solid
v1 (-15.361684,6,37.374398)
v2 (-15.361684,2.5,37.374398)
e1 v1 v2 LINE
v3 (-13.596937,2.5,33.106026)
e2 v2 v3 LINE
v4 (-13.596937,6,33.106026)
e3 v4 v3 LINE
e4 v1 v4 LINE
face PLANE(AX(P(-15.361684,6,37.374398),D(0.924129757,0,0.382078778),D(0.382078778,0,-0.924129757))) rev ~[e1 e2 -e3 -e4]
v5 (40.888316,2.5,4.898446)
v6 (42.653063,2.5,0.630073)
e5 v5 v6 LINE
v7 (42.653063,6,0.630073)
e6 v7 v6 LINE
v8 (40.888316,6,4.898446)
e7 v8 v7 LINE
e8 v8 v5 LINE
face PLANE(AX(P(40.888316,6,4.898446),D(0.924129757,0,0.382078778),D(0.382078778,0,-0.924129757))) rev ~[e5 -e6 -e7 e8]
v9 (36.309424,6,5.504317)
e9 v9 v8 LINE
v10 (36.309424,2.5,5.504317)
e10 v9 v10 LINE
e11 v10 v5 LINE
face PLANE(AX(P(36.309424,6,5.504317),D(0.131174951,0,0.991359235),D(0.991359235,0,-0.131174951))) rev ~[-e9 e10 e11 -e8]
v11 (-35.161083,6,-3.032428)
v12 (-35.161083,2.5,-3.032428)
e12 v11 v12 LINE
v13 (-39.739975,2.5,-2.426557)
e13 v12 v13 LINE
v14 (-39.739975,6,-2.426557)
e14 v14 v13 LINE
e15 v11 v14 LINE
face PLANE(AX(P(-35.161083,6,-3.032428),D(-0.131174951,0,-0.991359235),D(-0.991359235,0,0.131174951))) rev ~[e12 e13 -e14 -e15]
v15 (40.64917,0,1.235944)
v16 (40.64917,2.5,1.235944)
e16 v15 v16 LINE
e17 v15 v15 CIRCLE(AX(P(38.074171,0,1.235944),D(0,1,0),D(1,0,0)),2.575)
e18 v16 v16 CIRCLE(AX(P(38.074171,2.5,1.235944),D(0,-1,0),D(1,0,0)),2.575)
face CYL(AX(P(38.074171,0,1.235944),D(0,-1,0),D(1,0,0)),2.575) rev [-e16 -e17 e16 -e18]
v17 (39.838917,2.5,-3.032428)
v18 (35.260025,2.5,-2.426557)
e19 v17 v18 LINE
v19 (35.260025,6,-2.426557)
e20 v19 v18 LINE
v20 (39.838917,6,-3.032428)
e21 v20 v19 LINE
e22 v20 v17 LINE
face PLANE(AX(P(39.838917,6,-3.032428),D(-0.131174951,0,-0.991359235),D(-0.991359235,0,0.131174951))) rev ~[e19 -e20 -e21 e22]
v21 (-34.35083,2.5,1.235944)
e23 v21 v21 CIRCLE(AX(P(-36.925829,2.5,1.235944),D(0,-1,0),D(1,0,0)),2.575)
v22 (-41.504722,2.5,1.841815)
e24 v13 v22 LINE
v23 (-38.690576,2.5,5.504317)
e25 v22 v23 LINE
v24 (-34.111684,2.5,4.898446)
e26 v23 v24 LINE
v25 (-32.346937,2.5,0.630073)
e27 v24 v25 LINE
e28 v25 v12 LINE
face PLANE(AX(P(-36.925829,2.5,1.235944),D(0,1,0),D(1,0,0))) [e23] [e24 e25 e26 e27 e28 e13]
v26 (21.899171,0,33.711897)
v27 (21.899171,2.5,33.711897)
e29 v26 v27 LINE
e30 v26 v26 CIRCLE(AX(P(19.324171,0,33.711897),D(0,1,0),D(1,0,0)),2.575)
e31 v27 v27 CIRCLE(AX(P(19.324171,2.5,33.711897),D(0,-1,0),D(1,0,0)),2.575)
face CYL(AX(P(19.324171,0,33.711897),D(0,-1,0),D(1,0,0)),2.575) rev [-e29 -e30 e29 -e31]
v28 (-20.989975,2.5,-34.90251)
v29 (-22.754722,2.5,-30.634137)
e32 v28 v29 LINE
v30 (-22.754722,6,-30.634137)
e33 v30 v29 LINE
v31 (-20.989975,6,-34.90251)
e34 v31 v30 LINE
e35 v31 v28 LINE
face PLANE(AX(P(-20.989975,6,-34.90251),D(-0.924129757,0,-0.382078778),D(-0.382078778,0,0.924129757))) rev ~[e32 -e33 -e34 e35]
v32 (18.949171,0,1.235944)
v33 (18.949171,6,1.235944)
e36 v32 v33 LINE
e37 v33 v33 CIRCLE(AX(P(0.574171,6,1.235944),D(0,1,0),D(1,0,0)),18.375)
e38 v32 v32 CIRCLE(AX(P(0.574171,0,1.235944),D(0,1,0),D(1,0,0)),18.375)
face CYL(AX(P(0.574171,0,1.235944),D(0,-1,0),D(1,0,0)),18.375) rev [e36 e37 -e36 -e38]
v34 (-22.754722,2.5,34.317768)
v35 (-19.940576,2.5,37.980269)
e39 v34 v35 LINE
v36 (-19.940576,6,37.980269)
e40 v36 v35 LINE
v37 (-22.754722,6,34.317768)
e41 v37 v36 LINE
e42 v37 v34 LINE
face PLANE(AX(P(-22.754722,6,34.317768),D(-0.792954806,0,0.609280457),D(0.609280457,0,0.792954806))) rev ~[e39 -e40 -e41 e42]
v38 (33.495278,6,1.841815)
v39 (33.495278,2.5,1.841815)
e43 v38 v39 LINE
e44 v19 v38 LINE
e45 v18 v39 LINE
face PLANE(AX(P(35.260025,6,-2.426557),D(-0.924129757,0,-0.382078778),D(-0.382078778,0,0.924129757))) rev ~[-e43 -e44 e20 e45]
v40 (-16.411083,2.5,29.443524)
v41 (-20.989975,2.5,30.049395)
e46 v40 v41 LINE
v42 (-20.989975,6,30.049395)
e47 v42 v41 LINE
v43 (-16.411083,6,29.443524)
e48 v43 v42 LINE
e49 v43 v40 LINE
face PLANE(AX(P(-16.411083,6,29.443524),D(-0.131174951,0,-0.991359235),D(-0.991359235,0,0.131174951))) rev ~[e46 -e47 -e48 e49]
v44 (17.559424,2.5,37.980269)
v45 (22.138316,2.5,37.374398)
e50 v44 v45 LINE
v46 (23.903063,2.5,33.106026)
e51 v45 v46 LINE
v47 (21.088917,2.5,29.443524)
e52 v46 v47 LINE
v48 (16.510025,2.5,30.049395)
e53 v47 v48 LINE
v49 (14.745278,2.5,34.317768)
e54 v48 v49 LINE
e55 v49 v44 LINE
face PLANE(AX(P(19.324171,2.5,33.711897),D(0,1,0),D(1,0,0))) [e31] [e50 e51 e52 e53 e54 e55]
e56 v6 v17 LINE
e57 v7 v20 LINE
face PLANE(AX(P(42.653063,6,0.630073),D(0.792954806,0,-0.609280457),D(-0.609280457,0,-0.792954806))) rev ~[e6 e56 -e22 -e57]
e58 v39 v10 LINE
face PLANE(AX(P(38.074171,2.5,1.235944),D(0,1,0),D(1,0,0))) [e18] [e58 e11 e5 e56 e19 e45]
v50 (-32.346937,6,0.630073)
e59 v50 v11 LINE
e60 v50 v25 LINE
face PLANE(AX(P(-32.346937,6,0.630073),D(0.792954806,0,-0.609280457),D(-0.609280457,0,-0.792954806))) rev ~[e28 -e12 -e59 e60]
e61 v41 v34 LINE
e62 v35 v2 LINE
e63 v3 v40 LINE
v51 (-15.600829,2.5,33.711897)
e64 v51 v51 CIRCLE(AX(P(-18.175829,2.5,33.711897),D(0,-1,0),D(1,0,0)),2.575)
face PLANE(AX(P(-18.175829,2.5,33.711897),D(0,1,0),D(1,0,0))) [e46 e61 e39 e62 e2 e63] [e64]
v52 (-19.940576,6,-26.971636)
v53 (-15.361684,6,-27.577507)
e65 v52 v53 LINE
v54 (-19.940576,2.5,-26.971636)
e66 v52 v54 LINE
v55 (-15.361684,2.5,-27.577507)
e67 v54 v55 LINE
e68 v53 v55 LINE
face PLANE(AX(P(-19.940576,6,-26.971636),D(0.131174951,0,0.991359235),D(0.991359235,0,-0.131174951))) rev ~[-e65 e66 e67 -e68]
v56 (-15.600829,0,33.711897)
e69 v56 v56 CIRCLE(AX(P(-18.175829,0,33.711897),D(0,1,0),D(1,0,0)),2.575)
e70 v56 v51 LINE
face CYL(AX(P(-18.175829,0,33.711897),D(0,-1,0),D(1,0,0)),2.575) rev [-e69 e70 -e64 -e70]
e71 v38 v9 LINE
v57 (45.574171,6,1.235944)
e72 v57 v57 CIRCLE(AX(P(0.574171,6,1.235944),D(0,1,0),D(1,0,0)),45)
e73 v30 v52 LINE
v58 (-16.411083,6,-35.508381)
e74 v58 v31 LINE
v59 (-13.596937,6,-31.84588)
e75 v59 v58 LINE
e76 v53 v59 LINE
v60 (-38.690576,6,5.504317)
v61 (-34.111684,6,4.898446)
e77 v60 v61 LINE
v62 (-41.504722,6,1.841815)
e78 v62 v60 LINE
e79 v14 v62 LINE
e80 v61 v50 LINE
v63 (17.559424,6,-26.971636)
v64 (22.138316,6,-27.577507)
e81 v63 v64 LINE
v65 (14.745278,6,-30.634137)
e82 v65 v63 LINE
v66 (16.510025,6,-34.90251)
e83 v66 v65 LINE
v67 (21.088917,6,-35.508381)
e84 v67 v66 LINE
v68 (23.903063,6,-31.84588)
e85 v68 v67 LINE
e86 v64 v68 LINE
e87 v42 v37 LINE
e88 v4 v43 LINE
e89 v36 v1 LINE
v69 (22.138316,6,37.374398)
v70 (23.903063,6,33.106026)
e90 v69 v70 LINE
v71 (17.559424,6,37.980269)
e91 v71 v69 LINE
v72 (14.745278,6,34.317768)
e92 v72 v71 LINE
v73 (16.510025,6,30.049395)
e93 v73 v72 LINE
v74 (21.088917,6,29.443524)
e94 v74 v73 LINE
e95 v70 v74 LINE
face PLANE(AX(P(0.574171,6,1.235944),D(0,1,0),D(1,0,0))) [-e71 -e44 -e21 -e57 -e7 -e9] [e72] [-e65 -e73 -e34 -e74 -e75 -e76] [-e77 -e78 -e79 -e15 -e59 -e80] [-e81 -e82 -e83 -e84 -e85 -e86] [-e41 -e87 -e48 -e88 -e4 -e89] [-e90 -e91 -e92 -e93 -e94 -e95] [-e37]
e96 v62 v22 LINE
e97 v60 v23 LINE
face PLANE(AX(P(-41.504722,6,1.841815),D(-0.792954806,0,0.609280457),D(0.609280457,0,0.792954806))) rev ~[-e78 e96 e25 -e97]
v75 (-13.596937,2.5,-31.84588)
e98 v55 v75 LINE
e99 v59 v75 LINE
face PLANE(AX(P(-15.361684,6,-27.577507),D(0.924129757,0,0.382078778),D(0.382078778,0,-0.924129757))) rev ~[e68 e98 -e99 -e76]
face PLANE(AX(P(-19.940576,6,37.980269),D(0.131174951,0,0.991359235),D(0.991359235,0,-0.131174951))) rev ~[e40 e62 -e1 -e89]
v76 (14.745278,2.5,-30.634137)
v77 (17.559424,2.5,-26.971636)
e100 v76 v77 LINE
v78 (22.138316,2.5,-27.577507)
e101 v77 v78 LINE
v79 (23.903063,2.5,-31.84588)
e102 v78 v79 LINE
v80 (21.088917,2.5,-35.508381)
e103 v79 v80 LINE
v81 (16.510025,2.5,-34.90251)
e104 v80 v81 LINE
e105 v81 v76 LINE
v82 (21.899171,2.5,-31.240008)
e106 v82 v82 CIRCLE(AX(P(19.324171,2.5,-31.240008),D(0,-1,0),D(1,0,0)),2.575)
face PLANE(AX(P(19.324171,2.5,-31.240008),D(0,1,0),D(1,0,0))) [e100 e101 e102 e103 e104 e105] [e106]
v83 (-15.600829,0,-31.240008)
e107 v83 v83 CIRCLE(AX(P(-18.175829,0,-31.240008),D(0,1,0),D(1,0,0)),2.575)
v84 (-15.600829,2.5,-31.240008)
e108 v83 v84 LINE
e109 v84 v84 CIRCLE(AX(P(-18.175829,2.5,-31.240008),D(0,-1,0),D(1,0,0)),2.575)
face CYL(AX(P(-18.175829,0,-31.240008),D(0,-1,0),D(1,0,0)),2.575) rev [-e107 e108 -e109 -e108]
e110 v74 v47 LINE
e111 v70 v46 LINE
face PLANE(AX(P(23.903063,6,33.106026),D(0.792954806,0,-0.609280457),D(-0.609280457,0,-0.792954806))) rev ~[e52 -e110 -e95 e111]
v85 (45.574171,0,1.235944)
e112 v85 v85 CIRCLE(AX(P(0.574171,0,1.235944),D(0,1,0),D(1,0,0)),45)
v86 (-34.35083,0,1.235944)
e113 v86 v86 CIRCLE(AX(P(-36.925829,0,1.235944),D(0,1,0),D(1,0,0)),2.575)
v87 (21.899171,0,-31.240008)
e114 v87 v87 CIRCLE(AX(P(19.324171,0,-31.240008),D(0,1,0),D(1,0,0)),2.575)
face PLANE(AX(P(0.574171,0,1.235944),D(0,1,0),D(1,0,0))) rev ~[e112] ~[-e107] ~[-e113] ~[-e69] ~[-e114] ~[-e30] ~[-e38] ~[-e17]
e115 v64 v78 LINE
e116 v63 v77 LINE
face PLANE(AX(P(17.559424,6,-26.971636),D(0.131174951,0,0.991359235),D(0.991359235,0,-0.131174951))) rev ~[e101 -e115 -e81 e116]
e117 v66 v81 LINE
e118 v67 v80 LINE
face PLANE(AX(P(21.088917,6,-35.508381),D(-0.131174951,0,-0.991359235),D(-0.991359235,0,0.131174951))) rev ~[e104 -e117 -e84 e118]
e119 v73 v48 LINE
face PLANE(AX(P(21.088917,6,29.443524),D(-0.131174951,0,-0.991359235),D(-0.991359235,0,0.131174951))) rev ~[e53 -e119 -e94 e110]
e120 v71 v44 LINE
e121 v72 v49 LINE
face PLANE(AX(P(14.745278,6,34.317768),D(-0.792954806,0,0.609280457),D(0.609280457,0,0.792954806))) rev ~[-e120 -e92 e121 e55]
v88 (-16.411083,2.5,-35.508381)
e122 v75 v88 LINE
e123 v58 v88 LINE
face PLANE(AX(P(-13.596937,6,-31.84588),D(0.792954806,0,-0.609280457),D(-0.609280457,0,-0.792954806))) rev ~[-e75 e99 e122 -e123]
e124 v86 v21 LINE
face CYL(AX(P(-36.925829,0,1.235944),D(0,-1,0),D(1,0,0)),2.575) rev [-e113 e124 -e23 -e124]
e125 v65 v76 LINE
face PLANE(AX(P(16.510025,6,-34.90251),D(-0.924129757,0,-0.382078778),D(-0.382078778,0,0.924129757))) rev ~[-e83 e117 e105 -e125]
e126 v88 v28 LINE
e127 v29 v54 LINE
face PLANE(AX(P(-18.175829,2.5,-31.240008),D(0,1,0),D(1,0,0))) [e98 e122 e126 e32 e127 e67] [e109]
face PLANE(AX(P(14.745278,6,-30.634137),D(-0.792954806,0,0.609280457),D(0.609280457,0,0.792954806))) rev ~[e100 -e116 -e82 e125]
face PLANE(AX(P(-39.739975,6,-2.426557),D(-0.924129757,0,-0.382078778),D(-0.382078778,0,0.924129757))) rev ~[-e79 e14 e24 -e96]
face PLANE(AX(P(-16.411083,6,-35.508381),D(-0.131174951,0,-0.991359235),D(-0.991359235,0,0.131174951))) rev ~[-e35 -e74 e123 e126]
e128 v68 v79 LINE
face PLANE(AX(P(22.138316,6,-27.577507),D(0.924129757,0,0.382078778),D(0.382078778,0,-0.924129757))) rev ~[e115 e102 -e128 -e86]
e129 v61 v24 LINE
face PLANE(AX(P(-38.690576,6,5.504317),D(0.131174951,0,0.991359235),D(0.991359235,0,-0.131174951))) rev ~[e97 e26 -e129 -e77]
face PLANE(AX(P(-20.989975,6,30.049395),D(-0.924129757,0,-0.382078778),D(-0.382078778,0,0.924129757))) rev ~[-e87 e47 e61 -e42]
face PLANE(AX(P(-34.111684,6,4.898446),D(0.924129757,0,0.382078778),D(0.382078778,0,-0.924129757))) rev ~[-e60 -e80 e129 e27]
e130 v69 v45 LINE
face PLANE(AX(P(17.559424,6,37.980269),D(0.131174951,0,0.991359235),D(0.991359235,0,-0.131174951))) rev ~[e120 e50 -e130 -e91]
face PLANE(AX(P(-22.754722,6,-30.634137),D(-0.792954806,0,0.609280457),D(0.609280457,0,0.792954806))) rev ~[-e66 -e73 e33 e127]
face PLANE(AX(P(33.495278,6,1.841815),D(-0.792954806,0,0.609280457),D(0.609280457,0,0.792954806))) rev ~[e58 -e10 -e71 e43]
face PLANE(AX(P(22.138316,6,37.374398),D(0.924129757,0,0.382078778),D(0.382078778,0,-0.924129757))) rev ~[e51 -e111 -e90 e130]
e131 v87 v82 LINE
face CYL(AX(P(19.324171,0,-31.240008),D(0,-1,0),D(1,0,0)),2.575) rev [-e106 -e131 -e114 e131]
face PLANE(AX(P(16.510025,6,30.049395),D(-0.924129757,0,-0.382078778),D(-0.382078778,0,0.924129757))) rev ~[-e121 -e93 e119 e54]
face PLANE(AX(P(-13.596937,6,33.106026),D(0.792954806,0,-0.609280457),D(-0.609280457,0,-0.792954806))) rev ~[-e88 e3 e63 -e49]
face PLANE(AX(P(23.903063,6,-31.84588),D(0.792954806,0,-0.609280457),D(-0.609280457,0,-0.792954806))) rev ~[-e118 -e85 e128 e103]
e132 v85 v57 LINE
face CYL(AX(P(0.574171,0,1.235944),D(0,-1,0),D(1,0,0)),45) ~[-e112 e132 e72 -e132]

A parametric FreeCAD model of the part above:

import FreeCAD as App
import Part
import Sketcher
from FreeCAD import Vector
Q = App.Units.Quantity

doc = App.newDocument("Part")
body = doc.addObject("PartDesign::Body", "Body")

sketch1 = body.newObject("Sketcher::SketchObject", "Sketch")
sketch1.AttachmentSupport = (doc.getObject("XZ_Plane"), [""])
sketch1.MapMode = "FlatFace"
sketch1.addGeometry([
    Part.Circle(Vector(0.574171, 1.235944, 0), Vector(0, 0, 1), 45),
    Part.Circle(Vector(0.574171, 1.235944, 0), Vector(0, 0, 1), 18.375),
], False)
sketch1.addConstraint([
    Sketcher.Constraint("Coincident", 1, 3, 0, 3),
    Sketcher.Constraint("Diameter", 0, Q("90 mm")),
    Sketcher.Constraint("Diameter", 1, Q("36.75 mm")),
    Sketcher.Constraint("DistanceX", -1, 1, 0, 3, Q("0.574171 mm")),
    Sketcher.Constraint("DistanceY", -1, 1, 0, 3, Q("1.235944 mm")),
])
pad1 = body.newObject("PartDesign::Pad", "Pad")
pad1.Profile = sketch1
pad1.Length = 6
pad1.Reversed = True

sketch2 = body.newObject("Sketcher::SketchObject", "Sketch001")
sketch2.AttachmentSupport = (doc.getObject("XZ_Plane"), [""])
sketch2.MapMode = "FlatFace"
sketch2.addGeometry([
    Part.Circle(Vector(-18.175829, -31.240008, 0), Vector(0, 0, 1), 2.575),
    Part.Circle(Vector(19.324171, -31.240008, 0), Vector(0, 0, 1), 2.575),
    Part.Circle(Vector(38.074171, 1.235944, 0), Vector(0, 0, 1), 2.575),
    Part.Circle(Vector(19.324171, 33.711897, 0), Vector(0, 0, 1), 2.575),
    Part.Circle(Vector(-18.175829, 33.711897, 0), Vector(0, 0, 1), 2.575),
    Part.Circle(Vector(-36.925829, 1.235944, 0), Vector(0, 0, 1), 2.575),
], False)
sketch2.addConstraint([
    Sketcher.Constraint("Equal", 0, 1),
    Sketcher.Constraint("Equal", 1, 2),
    Sketcher.Constraint("Equal", 2, 3),
    Sketcher.Constraint("Equal", 3, 4),
    Sketcher.Constraint("Equal", 4, 5),
    Sketcher.Constraint("Horizontal", 0, 3, 1, 3),
    Sketcher.Constraint("Horizontal", 3, 3, 4, 3),
    Sketcher.Constraint("Horizontal", 2, 3, 5, 3),
    Sketcher.Constraint("Vertical", 1, 3, 3, 3),
    Sketcher.Constraint("Vertical", 0, 3, 4, 3),
    Sketcher.Constraint("Diameter", 0, Q("5.15 mm")),
    Sketcher.Constraint("DistanceX", 5, 3, 2, 3, Q("75 mm")),
    Sketcher.Constraint("DistanceX", 0, 3, 1, 3, Q("37.5 mm")),
    Sketcher.Constraint("DistanceX", 1, 3, 2, 3, Q("18.75 mm")),
    Sketcher.Constraint("DistanceX", 0, 3, -1, 1, Q("18.175829 mm")),
    Sketcher.Constraint("DistanceY", 0, 3, -1, 1, Q("31.240008 mm")),
    Sketcher.Constraint("DistanceY", -1, 1, 2, 3, Q("1.235944 mm")),
    Sketcher.Constraint("DistanceY", -1, 1, 3, 3, Q("33.711897 mm")),
])
pocket1 = body.newObject("PartDesign::Pocket", "Pocket")
pocket1.Profile = sketch2
pocket1.Type = "ThroughAll"

sketch3 = body.newObject("Sketcher::SketchObject", "Sketch002")
sketch3.AttachmentSupport = (doc.getObject("XZ_Plane"), [""])
sketch3.MapMode = "FlatFace"
sketch3.AttachmentOffset = App.Placement(Vector(0, 0, -6), App.Rotation())
sketch3.addGeometry([
    Part.LineSegment(Vector(22.138316, -27.577507, 0), Vector(23.903063, -31.84588, 0)),
    Part.LineSegment(Vector(23.903063, -31.84588, 0), Vector(21.088917, -35.508381, 0)),
    Part.LineSegment(Vector(21.088917, -35.508381, 0), Vector(16.510025, -34.90251, 0)),
    Part.LineSegment(Vector(16.510025, -34.90251, 0), Vector(14.745278, -30.634137, 0)),
    Part.LineSegment(Vector(14.745278, -30.634137, 0), Vector(17.559424, -26.971636, 0)),
    Part.LineSegment(Vector(17.559424, -26.971636, 0), Vector(22.138316, -27.577507, 0)),
    Part.LineSegment(Vector(-15.361684, -27.577507, 0), Vector(-13.596937, -31.84588, 0)),
    Part.LineSegment(Vector(-13.596937, -31.84588, 0), Vector(-16.411083, -35.508381, 0)),
    Part.LineSegment(Vector(-16.411083, -35.508381, 0), Vector(-20.989975, -34.90251, 0)),
    Part.LineSegment(Vector(-20.989975, -34.90251, 0), Vector(-22.754722, -30.634137, 0)),
    Part.LineSegment(Vector(-22.754722, -30.634137, 0), Vector(-19.940576, -26.971636, 0)),
    Part.LineSegment(Vector(-19.940576, -26.971636, 0), Vector(-15.361684, -27.577507, 0)),
    Part.LineSegment(Vector(36.309424, 5.504317, 0), Vector(40.888316, 4.898446, 0)),
    Part.LineSegment(Vector(40.888316, 4.898446, 0), Vector(42.653063, 0.630073, 0)),
    Part.LineSegment(Vector(42.653063, 0.630073, 0), Vector(39.838917, -3.032428, 0)),
    Part.LineSegment(Vector(39.838917, -3.032428, 0), Vector(35.260025, -2.426557, 0)),
    Part.LineSegment(Vector(35.260025, -2.426557, 0), Vector(33.495278, 1.841815, 0)),
    Part.LineSegment(Vector(33.495278, 1.841815, 0), Vector(36.309424, 5.504317, 0)),
    Part.LineSegment(Vector(14.745278, 34.317768, 0), Vector(17.559424, 37.980269, 0)),
    Part.LineSegment(Vector(17.559424, 37.980269, 0), Vector(22.138316, 37.374398, 0)),
    Part.LineSegment(Vector(22.138316, 37.374398, 0), Vector(23.903063, 33.106026, 0)),
    Part.LineSegment(Vector(23.903063, 33.106026, 0), Vector(21.088917, 29.443524, 0)),
    Part.LineSegment(Vector(21.088917, 29.443524, 0), Vector(16.510025, 30.049395, 0)),
    Part.LineSegment(Vector(16.510025, 30.049395, 0), Vector(14.745278, 34.317768, 0)),
    Part.LineSegment(Vector(-20.989975, 30.049395, 0), Vector(-22.754722, 34.317768, 0)),
    Part.LineSegment(Vector(-22.754722, 34.317768, 0), Vector(-19.940576, 37.980269, 0)),
    Part.LineSegment(Vector(-19.940576, 37.980269, 0), Vector(-15.361684, 37.374398, 0)),
    Part.LineSegment(Vector(-15.361684, 37.374398, 0), Vector(-13.596937, 33.106026, 0)),
    Part.LineSegment(Vector(-13.596937, 33.106026, 0), Vector(-16.411083, 29.443524, 0)),
    Part.LineSegment(Vector(-16.411083, 29.443524, 0), Vector(-20.989975, 30.049395, 0)),
    Part.LineSegment(Vector(-35.161083, -3.032428, 0), Vector(-39.739975, -2.426557, 0)),
    Part.LineSegment(Vector(-39.739975, -2.426557, 0), Vector(-41.504722, 1.841815, 0)),
    Part.LineSegment(Vector(-41.504722, 1.841815, 0), Vector(-38.690576, 5.504317, 0)),
    Part.LineSegment(Vector(-38.690576, 5.504317, 0), Vector(-34.111684, 4.898446, 0)),
    Part.LineSegment(Vector(-34.111684, 4.898446, 0), Vector(-32.346937, 0.630073, 0)),
    Part.LineSegment(Vector(-32.346937, 0.630073, 0), Vector(-35.161083, -3.032428, 0)),
], False)
sketch3.addConstraint([
    Sketcher.Constraint("Coincident", 0, 2, 1, 1),
    Sketcher.Constraint("Coincident", 1, 2, 2, 1),
    Sketcher.Constraint("Coincident", 2, 2, 3, 1),
    Sketcher.Constraint("Coincident", 3, 2, 4, 1),
    Sketcher.Constraint("Coincident", 4, 2, 5, 1),
    Sketcher.Constraint("Coincident", 5, 2, 0, 1),
    Sketcher.Constraint("Coincident", 6, 2, 7, 1),
    Sketcher.Constraint("Coincident", 7, 2, 8, 1),
    Sketcher.Constraint("Coincident", 8, 2, 9, 1),
    Sketcher.Constraint("Coincident", 9, 2, 10, 1),
    Sketcher.Constraint("Coincident", 10, 2, 11, 1),
    Sketcher.Constraint("Coincident", 11, 2, 6, 1),
    Sketcher.Constraint("Coincident", 12, 2, 13, 1),
    Sketcher.Constraint("Coincident", 13, 2, 14, 1),
    Sketcher.Constraint("Coincident", 14, 2, 15, 1),
    Sketcher.Constraint("Coincident", 15, 2, 16, 1),
    Sketcher.Constraint("Coincident", 16, 2, 17, 1),
    Sketcher.Constraint("Coincident", 17, 2, 12, 1),
    Sketcher.Constraint("Coincident", 18, 2, 19, 1),
    Sketcher.Constraint("Coincident", 19, 2, 20, 1),
    Sketcher.Constraint("Coincident", 20, 2, 21, 1),
    Sketcher.Constraint("Coincident", 21, 2, 22, 1),
    Sketcher.Constraint("Coincident", 22, 2, 23, 1),
    Sketcher.Constraint("Coincident", 23, 2, 18, 1),
    Sketcher.Constraint("Coincident", 24, 2, 25, 1),
    Sketcher.Constraint("Coincident", 25, 2, 26, 1),
    Sketcher.Constraint("Coincident", 26, 2, 27, 1),
    Sketcher.Constraint("Coincident", 27, 2, 28, 1),
    Sketcher.Constraint("Coincident", 28, 2, 29, 1),
    Sketcher.Constraint("Coincident", 29, 2, 24, 1),
    Sketcher.Constraint("Coincident", 30, 2, 31, 1),
    Sketcher.Constraint("Coincident", 31, 2, 32, 1),
    Sketcher.Constraint("Coincident", 32, 2, 33, 1),
    Sketcher.Constraint("Coincident", 33, 2, 34, 1),
    Sketcher.Constraint("Coincident", 34, 2, 35, 1),
    Sketcher.Constraint("Coincident", 35, 2, 30, 1),
    Sketcher.Constraint("Parallel", 0, 3),
    Sketcher.Constraint("Parallel", 1, 4),
    Sketcher.Constraint("Parallel", 2, 5),
    Sketcher.Constraint("Parallel", 3, 6),
    Sketcher.Constraint("Parallel", 4, 7),
    Sketcher.Constraint("Parallel", 5, 8),
    Sketcher.Constraint("Parallel", 6, 9),
    Sketcher.Constraint("Parallel", 7, 10),
    Sketcher.Constraint("Parallel", 8, 11),
    Sketcher.Constraint("Parallel", 11, 12),
    Sketcher.Constraint("Parallel", 9, 13),
    Sketcher.Constraint("Parallel", 10, 14),
    Sketcher.Constraint("Parallel", 12, 15),
    Sketcher.Constraint("Parallel", 13, 16),
    Sketcher.Constraint("Parallel", 14, 17),
    Sketcher.Constraint("Parallel", 17, 18),
    Sketcher.Constraint("Parallel", 15, 19),
    Sketcher.Constraint("Parallel", 16, 20),
    Sketcher.Constraint("Parallel", 18, 21),
    Sketcher.Constraint("Parallel", 19, 22),
    Sketcher.Constraint("Parallel", 20, 23),
    Sketcher.Constraint("Parallel", 23, 24),
    Sketcher.Constraint("Parallel", 21, 25),
    Sketcher.Constraint("Parallel", 22, 26),
    Sketcher.Constraint("Parallel", 24, 27),
    Sketcher.Constraint("Parallel", 25, 28),
    Sketcher.Constraint("Parallel", 26, 29),
    Sketcher.Constraint("Parallel", 29, 30),
    Sketcher.Constraint("Parallel", 27, 31),
    Sketcher.Constraint("Parallel", 28, 32),
    Sketcher.Constraint("Parallel", 30, 33),
    Sketcher.Constraint("Parallel", 31, 34),
    Sketcher.Constraint("Parallel", 32, 35),
    Sketcher.Constraint("Horizontal", 0, 2, 6, 2),
    Sketcher.Constraint("Horizontal", 1, 2, 7, 2),
    Sketcher.Constraint("Horizontal", 2, 2, 8, 2),
    Sketcher.Constraint("Horizontal", 3, 2, 9, 2),
    Sketcher.Constraint("Horizontal", 4, 2, 10, 2),
    Sketcher.Constraint("Horizontal", 23, 2, 24, 2),
    Sketcher.Constraint("Horizontal", 18, 2, 25, 2),
    Sketcher.Constraint("Horizontal", 19, 2, 26, 2),
    Sketcher.Constraint("Horizontal", 20, 2, 27, 2),
    Sketcher.Constraint("Horizontal", 21, 2, 28, 2),
    Sketcher.Constraint("Horizontal", 15, 2, 30, 2),
    Sketcher.Constraint("Horizontal", 16, 2, 31, 2),
    Sketcher.Constraint("Horizontal", 17, 2, 32, 2),
    Sketcher.Constraint("Horizontal", 12, 2, 33, 2),
    Sketcher.Constraint("Horizontal", 13, 2, 34, 2),
    Sketcher.Constraint("Vertical", 4, 2, 18, 2),
    Sketcher.Constraint("Vertical", 5, 2, 19, 2),
    Sketcher.Constraint("Vertical", 0, 2, 20, 2),
    Sketcher.Constraint("Vertical", 1, 2, 21, 2),
    Sketcher.Constraint("Vertical", 2, 2, 22, 2),
    Sketcher.Constraint("Vertical", 9, 2, 24, 2),
    Sketcher.Constraint("Equal", 0, 1),
    Sketcher.Constraint("Equal", 1, 2),
    Sketcher.Constraint("Equal", 2, 3),
    Sketcher.Constraint("Equal", 11, 12),
    Sketcher.Constraint("Equal", 12, 13),
    Sketcher.Constraint("Equal", 13, 14),
    Sketcher.Constraint("Equal", 14, 15),
    Sketcher.Constraint("DistanceX", 7, 2, 1, 2, Q("37.5 mm")),
    Sketcher.Constraint("DistanceX", 5, 2, 12, 2, Q("18.75 mm")),
    Sketcher.Constraint("DistanceX", 30, 2, 29, 2, Q("18.75 mm")),
    Sketcher.Constraint("DistanceY", -1, 1, 19, 2, Q("37.374398 mm")),
    Sketcher.Constraint("DistanceY", 1, 2, 0, 2, Q("3.662501 mm")),
    Sketcher.Constraint("DistanceX", 2, 2, 4, 2, Q("1.0494 mm")),
    Sketcher.Constraint("DistanceY", 0, 2, -1, 1, Q("31.84588 mm")),
    Sketcher.Constraint("DistanceY", 2, 2, -1, 1, Q("34.90251 mm")),
    Sketcher.Constraint("DistanceX", -1, 1, 3, 2, Q("14.745278 mm")),
    Sketcher.Constraint("DistanceY", 14, 2, -1, 1, Q("3.032428 mm")),
    Sketcher.Constraint("DistanceX", 2, 2, 0, 2, Q("7.393038 mm")),
])
pocket2 = body.newObject("PartDesign::Pocket", "Pocket001")
pocket2.Profile = sketch3
pocket2.Length = 3.5
pocket2.Reversed = True

doc.recompute()
